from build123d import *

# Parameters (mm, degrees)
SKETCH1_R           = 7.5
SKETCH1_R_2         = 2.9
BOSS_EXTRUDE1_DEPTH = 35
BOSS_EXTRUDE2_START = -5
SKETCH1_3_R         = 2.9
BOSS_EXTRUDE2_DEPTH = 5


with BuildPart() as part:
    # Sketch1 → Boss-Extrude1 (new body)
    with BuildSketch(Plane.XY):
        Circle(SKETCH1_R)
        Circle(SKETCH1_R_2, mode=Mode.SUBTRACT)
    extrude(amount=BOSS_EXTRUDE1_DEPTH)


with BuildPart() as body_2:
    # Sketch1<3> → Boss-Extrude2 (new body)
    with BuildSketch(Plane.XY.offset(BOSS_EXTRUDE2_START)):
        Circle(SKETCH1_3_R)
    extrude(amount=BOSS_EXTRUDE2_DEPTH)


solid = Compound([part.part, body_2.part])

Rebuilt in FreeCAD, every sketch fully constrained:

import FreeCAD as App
import Part
import Sketcher

doc = App.newDocument("Part")
params = doc.addObject("Spreadsheet::Sheet", "Params")
for row, (alias, value) in enumerate([
    ("sketch1_diameter", "15 mm"),
    ("sketch1_diameter2", "5.8 mm"),
    ("pad1_length", "35 mm"),
    ("sketch2_diameter", "5.8 mm"),
    ("pad2_length", "5 mm"),
], start=1):
    params.set(f"A{row}", alias)
    params.set(f"B{row}", "=" + value)
    params.setAlias(f"B{row}", alias)

body = doc.addObject("PartDesign::Body", "Body")

sketch1 = doc.addObject("Sketcher::SketchObject", "Sketch")
body.addObject(sketch1)
sketch1.AttachmentSupport = (doc.XY_Plane, [""])
sketch1.MapMode = "FlatFace"
sketch1.addGeometry(Part.Circle(App.Vector(0, 0, 0), App.Vector(0, 0, 1), 7.5), False)
sketch1.addGeometry(Part.Circle(App.Vector(0, 0, 0), App.Vector(0, 0, 1), 2.9), False)
sketch1.addConstraint(Sketcher.Constraint("Coincident", 0, 3, -1, 1))
sketch1.addConstraint(Sketcher.Constraint("Coincident", 1, 3, -1, 1))
sketch1.addConstraint(Sketcher.Constraint("Diameter", 0, 15.0))
sketch1.addConstraint(Sketcher.Constraint("Diameter", 1, 5.8))
sketch1.setExpression("Constraints[2]", "Params.sketch1_diameter")
sketch1.setExpression("Constraints[3]", "Params.sketch1_diameter2")
pad1 = doc.addObject("PartDesign::Pad", "Pad")
body.addObject(pad1)
pad1.Profile = sketch1
pad1.setExpression("Length", "Params.pad1_length")
body2 = doc.addObject("PartDesign::Body", "Body001")

sketch2 = doc.addObject("Sketcher::SketchObject", "Sketch001")
body2.addObject(sketch2)
sketch2.AttachmentSupport = (doc.getObject("XY_Plane001"), [""])
sketch2.MapMode = "FlatFace"
sketch2.AttachmentOffset = App.Placement(App.Vector(0, 0, -5), App.Rotation())
sketch2.addGeometry(Part.Circle(App.Vector(0, 0, 0), App.Vector(0, 0, 1), 2.9), False)
sketch2.addConstraint(Sketcher.Constraint("Coincident", 0, 3, -1, 1))
sketch2.addConstraint(Sketcher.Constraint("Diameter", 0, 5.8))
sketch2.setExpression("Constraints[1]", "Params.sketch2_diameter")
pad2 = doc.addObject("PartDesign::Pad", "Pad001")
body2.addObject(pad2)
pad2.Profile = sketch2
pad2.setExpression("Length", "Params.pad2_length")

doc.recompute()
